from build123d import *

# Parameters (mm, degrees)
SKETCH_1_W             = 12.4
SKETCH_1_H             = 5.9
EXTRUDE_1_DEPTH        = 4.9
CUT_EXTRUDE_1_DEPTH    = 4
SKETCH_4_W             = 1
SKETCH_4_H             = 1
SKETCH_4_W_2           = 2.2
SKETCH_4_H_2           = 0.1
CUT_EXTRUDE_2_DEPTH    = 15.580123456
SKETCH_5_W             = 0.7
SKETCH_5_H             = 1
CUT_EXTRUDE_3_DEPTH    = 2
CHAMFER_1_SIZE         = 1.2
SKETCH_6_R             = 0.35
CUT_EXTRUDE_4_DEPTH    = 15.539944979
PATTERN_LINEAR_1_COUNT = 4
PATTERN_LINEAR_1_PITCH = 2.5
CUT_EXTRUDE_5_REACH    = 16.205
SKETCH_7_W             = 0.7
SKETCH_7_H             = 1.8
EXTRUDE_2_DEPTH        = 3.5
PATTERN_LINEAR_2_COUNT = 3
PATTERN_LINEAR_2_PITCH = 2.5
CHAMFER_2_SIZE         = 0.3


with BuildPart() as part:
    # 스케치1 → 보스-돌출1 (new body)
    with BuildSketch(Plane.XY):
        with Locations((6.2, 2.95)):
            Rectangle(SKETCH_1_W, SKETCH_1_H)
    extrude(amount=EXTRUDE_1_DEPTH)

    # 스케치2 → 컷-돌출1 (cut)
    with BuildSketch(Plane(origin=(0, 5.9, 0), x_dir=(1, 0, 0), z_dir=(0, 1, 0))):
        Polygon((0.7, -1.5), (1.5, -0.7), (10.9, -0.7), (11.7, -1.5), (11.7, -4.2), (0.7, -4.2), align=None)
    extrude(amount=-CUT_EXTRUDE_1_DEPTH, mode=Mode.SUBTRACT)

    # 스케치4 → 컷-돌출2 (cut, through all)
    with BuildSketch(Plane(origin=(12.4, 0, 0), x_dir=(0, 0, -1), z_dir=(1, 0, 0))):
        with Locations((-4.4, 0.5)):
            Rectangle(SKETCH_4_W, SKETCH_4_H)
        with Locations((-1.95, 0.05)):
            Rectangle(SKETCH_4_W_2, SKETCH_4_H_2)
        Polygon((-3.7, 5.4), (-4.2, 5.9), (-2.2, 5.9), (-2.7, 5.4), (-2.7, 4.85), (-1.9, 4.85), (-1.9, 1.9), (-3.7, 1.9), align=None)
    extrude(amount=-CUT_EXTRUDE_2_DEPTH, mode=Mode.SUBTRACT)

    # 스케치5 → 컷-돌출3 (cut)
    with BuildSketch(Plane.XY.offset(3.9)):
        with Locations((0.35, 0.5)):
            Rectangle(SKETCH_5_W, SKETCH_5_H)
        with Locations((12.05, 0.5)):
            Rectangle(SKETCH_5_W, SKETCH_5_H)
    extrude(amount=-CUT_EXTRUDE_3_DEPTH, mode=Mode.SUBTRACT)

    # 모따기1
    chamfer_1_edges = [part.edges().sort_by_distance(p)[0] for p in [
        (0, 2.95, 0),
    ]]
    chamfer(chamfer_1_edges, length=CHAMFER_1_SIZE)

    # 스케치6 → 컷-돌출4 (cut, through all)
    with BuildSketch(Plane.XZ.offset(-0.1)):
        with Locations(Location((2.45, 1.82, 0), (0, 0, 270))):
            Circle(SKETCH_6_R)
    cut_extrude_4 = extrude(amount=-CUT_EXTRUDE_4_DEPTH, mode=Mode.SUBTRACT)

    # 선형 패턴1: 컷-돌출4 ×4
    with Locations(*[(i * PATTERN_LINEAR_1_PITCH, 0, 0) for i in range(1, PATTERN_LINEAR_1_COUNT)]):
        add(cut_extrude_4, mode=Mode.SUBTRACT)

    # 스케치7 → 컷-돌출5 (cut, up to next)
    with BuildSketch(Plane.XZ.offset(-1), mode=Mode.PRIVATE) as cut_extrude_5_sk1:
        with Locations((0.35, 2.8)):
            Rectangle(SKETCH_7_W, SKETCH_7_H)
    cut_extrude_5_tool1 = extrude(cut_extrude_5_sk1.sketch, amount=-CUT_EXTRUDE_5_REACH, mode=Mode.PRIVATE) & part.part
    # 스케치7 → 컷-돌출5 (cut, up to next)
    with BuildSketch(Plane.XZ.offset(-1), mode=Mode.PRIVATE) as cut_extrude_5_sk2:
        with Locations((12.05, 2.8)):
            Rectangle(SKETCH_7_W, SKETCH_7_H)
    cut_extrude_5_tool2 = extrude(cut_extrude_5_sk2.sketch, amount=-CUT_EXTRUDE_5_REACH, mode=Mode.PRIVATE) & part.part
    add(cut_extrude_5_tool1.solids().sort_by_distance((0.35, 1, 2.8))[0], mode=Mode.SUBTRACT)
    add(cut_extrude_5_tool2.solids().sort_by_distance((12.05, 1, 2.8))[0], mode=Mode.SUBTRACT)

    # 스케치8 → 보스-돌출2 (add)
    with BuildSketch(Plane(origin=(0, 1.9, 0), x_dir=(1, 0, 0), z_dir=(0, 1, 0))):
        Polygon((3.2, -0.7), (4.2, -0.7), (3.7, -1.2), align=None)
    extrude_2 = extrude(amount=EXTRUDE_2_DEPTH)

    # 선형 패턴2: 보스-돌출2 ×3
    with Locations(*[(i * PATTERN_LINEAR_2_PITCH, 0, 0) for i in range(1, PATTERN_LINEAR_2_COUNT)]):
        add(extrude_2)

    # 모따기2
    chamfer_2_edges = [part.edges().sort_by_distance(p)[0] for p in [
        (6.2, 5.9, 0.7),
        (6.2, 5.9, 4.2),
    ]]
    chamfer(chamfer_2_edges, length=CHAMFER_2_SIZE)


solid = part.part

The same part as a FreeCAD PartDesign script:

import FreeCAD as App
import Part
import Sketcher

V = App.Vector


def edges_at(feature, points):
    """Names of the edges that pass closest to the given points."""
    edges = feature.Shape.Edges
    near = lambda p: min(range(len(edges)), key=lambda i: edges[i].distToShape(Part.Vertex(*p))[0])
    return sorted({f"Edge{near(p) + 1}" for p in points})

doc = App.newDocument("Part")
body = doc.addObject("PartDesign::Body", "Body")

sketch1 = body.newObject("Sketcher::SketchObject", "Sketch")
sketch1.AttachmentSupport = (doc.getObject("XY_Plane"), [""])
sketch1.MapMode = "FlatFace"
sketch1.addGeometry(Part.LineSegment(V(0, 5.9, 0), V(0, 0, 0)), False)
sketch1.addGeometry(Part.LineSegment(V(0, 0, 0), V(12.4, 0, 0)), False)
sketch1.addGeometry(Part.LineSegment(V(12.4, 0, 0), V(12.4, 5.9, 0)), False)
sketch1.addGeometry(Part.LineSegment(V(12.4, 5.9, 0), V(0, 5.9, 0)), False)
sketch1.addConstraint(Sketcher.Constraint("Coincident", 0, 2, 1, 1))
sketch1.addConstraint(Sketcher.Constraint("Coincident", 1, 2, 2, 1))
sketch1.addConstraint(Sketcher.Constraint("Coincident", 2, 2, 3, 1))
sketch1.addConstraint(Sketcher.Constraint("Coincident", 3, 2, 0, 1))
sketch1.addConstraint(Sketcher.Constraint("Vertical", 0))
sketch1.addConstraint(Sketcher.Constraint("Horizontal", 1))
sketch1.addConstraint(Sketcher.Constraint("Vertical", 2))
sketch1.addConstraint(Sketcher.Constraint("Horizontal", 3))
sketch1.addConstraint(Sketcher.Constraint("Coincident", 0, 2, -1, 1))
sketch1.addConstraint(Sketcher.Constraint("DistanceX", 1, 1, 1, 2, 12.4))
sketch1.addConstraint(Sketcher.Constraint("DistanceY", 0, 2, 0, 1, 5.9))
pad1 = body.newObject("PartDesign::Pad", "Pad")
pad1.Profile = sketch1
pad1.Length = 4.9

sketch2 = body.newObject("Sketcher::SketchObject", "Sketch001")
sketch2.AttachmentSupport = (doc.getObject("XZ_Plane"), [""])
sketch2.MapMode = "FlatFace"
sketch2.AttachmentOffset = App.Placement(V(0, 0, -5.9), App.Rotation())
sketch2.addGeometry(Part.LineSegment(V(1.5, 0.7, 0), V(0.7, 1.5, 0)), False)
sketch2.addGeometry(Part.LineSegment(V(0.7, 1.5, 0), V(0.7, 4.2, 0)), False)
sketch2.addGeometry(Part.LineSegment(V(0.7, 4.2, 0), V(11.7, 4.2, 0)), False)
sketch2.addGeometry(Part.LineSegment(V(11.7, 4.2, 0), V(11.7, 1.5, 0)), False)
sketch2.addGeometry(Part.LineSegment(V(11.7, 1.5, 0), V(10.9, 0.7, 0)), False)
sketch2.addGeometry(Part.LineSegment(V(10.9, 0.7, 0), V(1.5, 0.7, 0)), False)
sketch2.addConstraint(Sketcher.Constraint("Coincident", 0, 2, 1, 1))
sketch2.addConstraint(Sketcher.Constraint("Coincident", 1, 2, 2, 1))
sketch2.addConstraint(Sketcher.Constraint("Coincident", 2, 2, 3, 1))
sketch2.addConstraint(Sketcher.Constraint("Coincident", 3, 2, 4, 1))
sketch2.addConstraint(Sketcher.Constraint("Coincident", 4, 2, 5, 1))
sketch2.addConstraint(Sketcher.Constraint("Coincident", 5, 2, 0, 1))
sketch2.addConstraint(Sketcher.Constraint("Vertical", 1))
sketch2.addConstraint(Sketcher.Constraint("Horizontal", 2))
sketch2.addConstraint(Sketcher.Constraint("Vertical", 3))
sketch2.addConstraint(Sketcher.Constraint("Horizontal", 5))
sketch2.addConstraint(Sketcher.Constraint("Perpendicular", 0, 4))
sketch2.addConstraint(Sketcher.Constraint("Horizontal", 0, 2, 3, 2))
sketch2.addConstraint(Sketcher.Constraint("Equal", 0, 4))
sketch2.addConstraint(Sketcher.Constraint("DistanceX", 2, 1, 2, 2, 11.0))
sketch2.addConstraint(Sketcher.Constraint("DistanceX", 5, 2, 5, 1, 9.4))
sketch2.addConstraint(Sketcher.Constraint("DistanceY", 1, 1, 1, 2, 2.7))
sketch2.addConstraint(Sketcher.Constraint("DistanceX", -1, 1, 0, 2, 0.7))
sketch2.addConstraint(Sketcher.Constraint("DistanceY", -1, 1, 0, 2, 1.5))
pocket1 = body.newObject("PartDesign::Pocket", "Pocket")
pocket1.Profile = sketch2
pocket1.Length = 4
pocket1.Reversed = True

sketch3 = body.newObject("Sketcher::SketchObject", "Sketch002")
sketch3.AttachmentSupport = (doc.getObject("YZ_Plane"), [""])
sketch3.MapMode = "FlatFace"
sketch3.AttachmentOffset = App.Placement(V(0, 0, 12.4), App.Rotation())
sketch3.addGeometry(Part.LineSegment(V(1, 4.9, 0), V(0, 4.9, 0)), False)
sketch3.addGeometry(Part.LineSegment(V(0, 4.9, 0), V(0, 3.9, 0)), False)
sketch3.addGeometry(Part.LineSegment(V(0, 3.9, 0), V(1, 3.9, 0)), False)
sketch3.addGeometry(Part.LineSegment(V(1, 3.9, 0), V(1, 4.9, 0)), False)
sketch3.addGeometry(Part.LineSegment(V(0.1, 3.05, 0), V(0, 3.05, 0)), False)
sketch3.addGeometry(Part.LineSegment(V(0, 3.05, 0), V(0, 0.85, 0)), False)
sketch3.addGeometry(Part.LineSegment(V(0, 0.85, 0), V(0.1, 0.85, 0)), False)
sketch3.addGeometry(Part.LineSegment(V(0.1, 0.85, 0), V(0.1, 3.05, 0)), False)
sketch3.addGeometry(Part.LineSegment(V(5.9, 4.2, 0), V(5.4, 3.7, 0)), False)
sketch3.addGeometry(Part.LineSegment(V(5.4, 3.7, 0), V(1.9, 3.7, 0)), False)
sketch3.addGeometry(Part.LineSegment(V(1.9, 3.7, 0), V(1.9, 1.9, 0)), False)
sketch3.addGeometry(Part.LineSegment(V(1.9, 1.9, 0), V(4.85, 1.9, 0)), False)
sketch3.addGeometry(Part.LineSegment(V(4.85, 1.9, 0), V(4.85, 2.7, 0)), False)
sketch3.addGeometry(Part.LineSegment(V(4.85, 2.7, 0), V(5.4, 2.7, 0)), False)
sketch3.addGeometry(Part.LineSegment(V(5.4, 2.7, 0), V(5.9, 2.2, 0)), False)
sketch3.addGeometry(Part.LineSegment(V(5.9, 2.2, 0), V(5.9, 4.2, 0)), False)
sketch3.addConstraint(Sketcher.Constraint("Coincident", 0, 2, 1, 1))
sketch3.addConstraint(Sketcher.Constraint("Coincident", 1, 2, 2, 1))
sketch3.addConstraint(Sketcher.Constraint("Coincident", 2, 2, 3, 1))
sketch3.addConstraint(Sketcher.Constraint("Coincident", 3, 2, 0, 1))
sketch3.addConstraint(Sketcher.Constraint("Coincident", 4, 2, 5, 1))
sketch3.addConstraint(Sketcher.Constraint("Coincident", 5, 2, 6, 1))
sketch3.addConstraint(Sketcher.Constraint("Coincident", 6, 2, 7, 1))
sketch3.addConstraint(Sketcher.Constraint("Coincident", 7, 2, 4, 1))
sketch3.addConstraint(Sketcher.Constraint("Coincident", 8, 2, 9, 1))
sketch3.addConstraint(Sketcher.Constraint("Coincident", 9, 2, 10, 1))
sketch3.addConstraint(Sketcher.Constraint("Coincident", 10, 2, 11, 1))
sketch3.addConstraint(Sketcher.Constraint("Coincident", 11, 2, 12, 1))
sketch3.addConstraint(Sketcher.Constraint("Coincident", 12, 2, 13, 1))
sketch3.addConstraint(Sketcher.Constraint("Coincident", 13, 2, 14, 1))
sketch3.addConstraint(Sketcher.Constraint("Coincident", 14, 2, 15, 1))
sketch3.addConstraint(Sketcher.Constraint("Coincident", 15, 2, 8, 1))
sketch3.addConstraint(Sketcher.Constraint("Horizontal", 0))
sketch3.addConstraint(Sketcher.Constraint("Vertical", 1))
sketch3.addConstraint(Sketcher.Constraint("Horizontal", 2))
sketch3.addConstraint(Sketcher.Constraint("Vertical", 3))
sketch3.addConstraint(Sketcher.Constraint("Horizontal", 4))
sketch3.addConstraint(Sketcher.Constraint("Vertical", 5))
sketch3.addConstraint(Sketcher.Constraint("Horizontal", 6))
sketch3.addConstraint(Sketcher.Constraint("Vertical", 7))
sketch3.addConstraint(Sketcher.Constraint("Horizontal", 9))
sketch3.addConstraint(Sketcher.Constraint("Vertical", 10))
sketch3.addConstraint(Sketcher.Constraint("Horizontal", 11))
sketch3.addConstraint(Sketcher.Constraint("Vertical", 12))
sketch3.addConstraint(Sketcher.Constraint("Horizontal", 13))
sketch3.addConstraint(Sketcher.Constraint("Vertical", 15))
sketch3.addConstraint(Sketcher.Constraint("PointOnObject", 0, 2, -2))
sketch3.addConstraint(Sketcher.Constraint("PointOnObject", 4, 2, -2))
sketch3.addConstraint(Sketcher.Constraint("Perpendicular", 8, 14))
sketch3.addConstraint(Sketcher.Constraint("Vertical", 8, 2, 13, 2))
sketch3.addConstraint(Sketcher.Constraint("Equal", 2, 1))
sketch3.addConstraint(Sketcher.Constraint("Equal", 8, 14))
sketch3.addConstraint(Sketcher.Constraint("DistanceX", 0, 2, 0, 1, 1.0))
sketch3.addConstraint(Sketcher.Constraint("DistanceY", 15, 1, 15, 2, 2.0))
sketch3.addConstraint(Sketcher.Constraint("DistanceX", 4, 2, 4, 1, 0.1))
sketch3.addConstraint(Sketcher.Constraint("DistanceX", 9, 2, 9, 1, 3.5))
sketch3.addConstraint(Sketcher.Constraint("DistanceY", 5, 2, 5, 1, 2.2))
sketch3.addConstraint(Sketcher.Constraint("DistanceY", 10, 2, 10, 1, 1.8))
sketch3.addConstraint(Sketcher.Constraint("DistanceY", 12, 1, 12, 2, 0.8))
sketch3.addConstraint(Sketcher.Constraint("DistanceY", 10, 2, 2, 2, 2.0))
sketch3.addConstraint(Sketcher.Constraint("DistanceX", 11, 1, 11, 2, 2.95))
sketch3.addConstraint(Sketcher.Constraint("DistanceY", -1, 1, 0, 2, 4.9))
sketch3.addConstraint(Sketcher.Constraint("DistanceX", -1, 1, 8, 2, 5.4))
sketch3.addConstraint(Sketcher.Constraint("DistanceY", -1, 1, 4, 2, 3.05))
pocket2 = body.newObject("PartDesign::Pocket", "Pocket001")
pocket2.Profile = sketch3
pocket2.Type = "ThroughAll"

sketch4 = body.newObject("Sketcher::SketchObject", "Sketch003")
sketch4.AttachmentSupport = (doc.getObject("XY_Plane"), [""])
sketch4.MapMode = "FlatFace"
sketch4.AttachmentOffset = App.Placement(V(0, 0, 3.9), App.Rotation())
sketch4.addGeometry(Part.LineSegment(V(0, 1, 0), V(0, 0, 0)), False)
sketch4.addGeometry(Part.LineSegment(V(0, 0, 0), V(0.7, 0, 0)), False)
sketch4.addGeometry(Part.LineSegment(V(0.7, 0, 0), V(0.7, 1, 0)), False)
sketch4.addGeometry(Part.LineSegment(V(0.7, 1, 0), V(0, 1, 0)), False)
sketch4.addGeometry(Part.LineSegment(V(11.7, 1, 0), V(11.7, 0, 0)), False)
sketch4.addGeometry(Part.LineSegment(V(11.7, 0, 0), V(12.4, 0, 0)), False)
sketch4.addGeometry(Part.LineSegment(V(12.4, 0, 0), V(12.4, 1, 0)), False)
sketch4.addGeometry(Part.LineSegment(V(12.4, 1, 0), V(11.7, 1, 0)), False)
sketch4.addConstraint(Sketcher.Constraint("Coincident", 0, 2, 1, 1))
sketch4.addConstraint(Sketcher.Constraint("Coincident", 1, 2, 2, 1))
sketch4.addConstraint(Sketcher.Constraint("Coincident", 2, 2, 3, 1))
sketch4.addConstraint(Sketcher.Constraint("Coincident", 3, 2, 0, 1))
sketch4.addConstraint(Sketcher.Constraint("Coincident", 4, 2, 5, 1))
sketch4.addConstraint(Sketcher.Constraint("Coincident", 5, 2, 6, 1))
sketch4.addConstraint(Sketcher.Constraint("Coincident", 6, 2, 7, 1))
sketch4.addConstraint(Sketcher.Constraint("Coincident", 7, 2, 4, 1))
sketch4.addConstraint(Sketcher.Constraint("Vertical", 0))
sketch4.addConstraint(Sketcher.Constraint("Horizontal", 1))
sketch4.addConstraint(Sketcher.Constraint("Vertical", 2))
sketch4.addConstraint(Sketcher.Constraint("Horizontal", 3))
sketch4.addConstraint(Sketcher.Constraint("Vertical", 4))
sketch4.addConstraint(Sketcher.Constraint("Horizontal", 5))
sketch4.addConstraint(Sketcher.Constraint("Vertical", 6))
sketch4.addConstraint(Sketcher.Constraint("Horizontal", 7))
sketch4.addConstraint(Sketcher.Constraint("Coincident", 0, 2, -1, 1))
sketch4.addConstraint(Sketcher.Constraint("PointOnObject", 4, 2, -1))
sketch4.addConstraint(Sketcher.Constraint("Horizontal", 3, 2, 6, 2))
sketch4.addConstraint(Sketcher.Constraint("Equal", 3, 5))
sketch4.addConstraint(Sketcher.Constraint("DistanceY", 0, 2, 0, 1, 1.0))
sketch4.addConstraint(Sketcher.Constraint("DistanceX", 1, 1, 1, 2, 0.7))
sketch4.addConstraint(Sketcher.Constraint("DistanceX", 1, 2, 4, 2, 11.0))
pocket3 = body.newObject("PartDesign::Pocket", "Pocket002")
pocket3.Profile = sketch4
pocket3.Length = 2
doc.recompute()

chamfer = body.newObject("PartDesign::Chamfer", "Chamfer")
chamfer.Base = (pocket3, edges_at(pocket3, [(0, 2.95, 0)]))
chamfer.Size = 1.2

sketch5 = body.newObject("Sketcher::SketchObject", "Sketch004")
sketch5.AttachmentSupport = (doc.getObject("XZ_Plane"), [""])
sketch5.MapMode = "FlatFace"
sketch5.AttachmentOffset = App.Placement(V(0, 0, -0.1), App.Rotation())
sketch5.addGeometry(Part.Circle(V(2.45, 1.82, 0), V(0, 0, 1), 0.35), False)
sketch5.addConstraint(Sketcher.Constraint("Diameter", 0, 0.7))
sketch5.addConstraint(Sketcher.Constraint("DistanceX", -1, 1, 0, 3, 2.45))
sketch5.addConstraint(Sketcher.Constraint("DistanceY", -1, 1, 0, 3, 1.82))
pocket4 = body.newObject("PartDesign::Pocket", "Pocket003")
pocket4.Profile = sketch5
pocket4.Type = "ThroughAll"
doc.recompute()

linearpattern = body.newObject("PartDesign::LinearPattern", "LinearPattern")
linearpattern.Originals = [pocket4]
linearpattern.Direction = (doc.getObject("X_Axis"), [""])
linearpattern.Mode = "offset"
linearpattern.Offset = 2.5
linearpattern.Occurrences = 4
body.Tip = linearpattern

sketch6 = body.newObject("Sketcher::SketchObject", "Sketch005")
sketch6.AttachmentSupport = (doc.getObject("XZ_Plane"), [""])
sketch6.MapMode = "FlatFace"
sketch6.AttachmentOffset = App.Placement(V(0, 0, -1), App.Rotation())
sketch6.addGeometry(Part.LineSegment(V(0, 3.7, 0), V(0, 1.9, 0)), False)
sketch6.addGeometry(Part.LineSegment(V(0, 1.9, 0), V(0.7, 1.9, 0)), False)
sketch6.addGeometry(Part.LineSegment(V(0.7, 1.9, 0), V(0.7, 3.7, 0)), False)
sketch6.addGeometry(Part.LineSegment(V(0.7, 3.7, 0), V(0, 3.7, 0)), False)
sketch6.addConstraint(Sketcher.Constraint("Coincident", 0, 2, 1, 1))
sketch6.addConstraint(Sketcher.Constraint("Coincident", 1, 2, 2, 1))
sketch6.addConstraint(Sketcher.Constraint("Coincident", 2, 2, 3, 1))
sketch6.addConstraint(Sketcher.Constraint("Coincident", 3, 2, 0, 1))
sketch6.addConstraint(Sketcher.Constraint("Vertical", 0))
sketch6.addConstraint(Sketcher.Constraint("Horizontal", 1))
sketch6.addConstraint(Sketcher.Constraint("Vertical", 2))
sketch6.addConstraint(Sketcher.Constraint("Horizontal", 3))
sketch6.addConstraint(Sketcher.Constraint("PointOnObject", 0, 2, -2))
sketch6.addConstraint(Sketcher.Constraint("DistanceX", 1, 1, 1, 2, 0.7))
sketch6.addConstraint(Sketcher.Constraint("DistanceY", 0, 2, 0, 1, 1.8))
sketch6.addConstraint(Sketcher.Constraint("DistanceY", -1, 1, 0, 2, 1.9))
pocket5 = body.newObject("PartDesign::Pocket", "Pocket004")
pocket5.Profile = sketch6
pocket5.Type = "UpToFirst"

sketch7 = body.newObject("Sketcher::SketchObject", "Sketch006")
sketch7.AttachmentSupport = (doc.getObject("XZ_Plane"), [""])
sketch7.MapMode = "FlatFace"
sketch7.AttachmentOffset = App.Placement(V(0, 0, -1), App.Rotation())
sketch7.addGeometry(Part.LineSegment(V(11.7, 3.7, 0), V(11.7, 1.9, 0)), False)
sketch7.addGeometry(Part.LineSegment(V(11.7, 1.9, 0), V(12.4, 1.9, 0)), False)
sketch7.addGeometry(Part.LineSegment(V(12.4, 1.9, 0), V(12.4, 3.7, 0)), False)
sketch7.addGeometry(Part.LineSegment(V(12.4, 3.7, 0), V(11.7, 3.7, 0)), False)
sketch7.addConstraint(Sketcher.Constraint("Coincident", 0, 2, 1, 1))
sketch7.addConstraint(Sketcher.Constraint("Coincident", 1, 2, 2, 1))
sketch7.addConstraint(Sketcher.Constraint("Coincident", 2, 2, 3, 1))
sketch7.addConstraint(Sketcher.Constraint("Coincident", 3, 2, 0, 1))
sketch7.addConstraint(Sketcher.Constraint("Vertical", 0))
sketch7.addConstraint(Sketcher.Constraint("Horizontal", 1))
sketch7.addConstraint(Sketcher.Constraint("Vertical", 2))
sketch7.addConstraint(Sketcher.Constraint("Horizontal", 3))
sketch7.addConstraint(Sketcher.Constraint("DistanceX", 1, 1, 1, 2, 0.7))
sketch7.addConstraint(Sketcher.Constraint("DistanceY", 0, 2, 0, 1, 1.8))
sketch7.addConstraint(Sketcher.Constraint("DistanceX", -1, 1, 0, 2, 11.7))
sketch7.addConstraint(Sketcher.Constraint("DistanceY", -1, 1, 0, 2, 1.9))
pocket6 = body.newObject("PartDesign::Pocket", "Pocket005")
pocket6.Profile = sketch7
pocket6.Type = "UpToFirst"

sketch8 = body.newObject("Sketcher::SketchObject", "Sketch007")
sketch8.AttachmentSupport = (doc.getObject("XZ_Plane"), [""])
sketch8.MapMode = "FlatFace"
sketch8.AttachmentOffset = App.Placement(V(0, 0, -1.9), App.Rotation())
sketch8.addGeometry(Part.LineSegment(V(4.2, 0.7, 0), V(3.2, 0.7, 0)), False)
sketch8.addGeometry(Part.LineSegment(V(3.2, 0.7, 0), V(3.7, 1.2, 0)), False)
sketch8.addGeometry(Part.LineSegment(V(3.7, 1.2, 0), V(4.2, 0.7, 0)), False)
sketch8.addConstraint(Sketcher.Constraint("Coincident", 0, 2, 1, 1))
sketch8.addConstraint(Sketcher.Constraint("Coincident", 1, 2, 2, 1))
sketch8.addConstraint(Sketcher.Constraint("Coincident", 2, 2, 0, 1))
sketch8.addConstraint(Sketcher.Constraint("Horizontal", 0))
sketch8.addConstraint(Sketcher.Constraint("Perpendicular", 1, 2))
sketch8.addConstraint(Sketcher.Constraint("Equal", 1, 2))
sketch8.addConstraint(Sketcher.Constraint("DistanceX", 0, 2, 0, 1, 1.0))
sketch8.addConstraint(Sketcher.Constraint("DistanceX", -1, 1, 0, 2, 3.2))
sketch8.addConstraint(Sketcher.Constraint("DistanceY", -1, 1, 0, 2, 0.7))
pad2 = body.newObject("PartDesign::Pad", "Pad001")
pad2.Profile = sketch8
pad2.Length = 3.5
pad2.Reversed = True
doc.recompute()

linearpattern2 = body.newObject("PartDesign::LinearPattern", "LinearPattern001")
linearpattern2.Originals = [pad2]
linearpattern2.Direction = (doc.getObject("X_Axis"), [""])
linearpattern2.Mode = "offset"
linearpattern2.Offset = 2.5
linearpattern2.Occurrences = 3
body.Tip = linearpattern2
doc.recompute()

chamfer2 = body.newObject("PartDesign::Chamfer", "Chamfer001")
chamfer2.Base = (linearpattern2, edges_at(linearpattern2, [(6.2, 5.9, 0.7), (6.2, 5.9, 4.2)]))
chamfer2.Size = 0.3

doc.recompute()
